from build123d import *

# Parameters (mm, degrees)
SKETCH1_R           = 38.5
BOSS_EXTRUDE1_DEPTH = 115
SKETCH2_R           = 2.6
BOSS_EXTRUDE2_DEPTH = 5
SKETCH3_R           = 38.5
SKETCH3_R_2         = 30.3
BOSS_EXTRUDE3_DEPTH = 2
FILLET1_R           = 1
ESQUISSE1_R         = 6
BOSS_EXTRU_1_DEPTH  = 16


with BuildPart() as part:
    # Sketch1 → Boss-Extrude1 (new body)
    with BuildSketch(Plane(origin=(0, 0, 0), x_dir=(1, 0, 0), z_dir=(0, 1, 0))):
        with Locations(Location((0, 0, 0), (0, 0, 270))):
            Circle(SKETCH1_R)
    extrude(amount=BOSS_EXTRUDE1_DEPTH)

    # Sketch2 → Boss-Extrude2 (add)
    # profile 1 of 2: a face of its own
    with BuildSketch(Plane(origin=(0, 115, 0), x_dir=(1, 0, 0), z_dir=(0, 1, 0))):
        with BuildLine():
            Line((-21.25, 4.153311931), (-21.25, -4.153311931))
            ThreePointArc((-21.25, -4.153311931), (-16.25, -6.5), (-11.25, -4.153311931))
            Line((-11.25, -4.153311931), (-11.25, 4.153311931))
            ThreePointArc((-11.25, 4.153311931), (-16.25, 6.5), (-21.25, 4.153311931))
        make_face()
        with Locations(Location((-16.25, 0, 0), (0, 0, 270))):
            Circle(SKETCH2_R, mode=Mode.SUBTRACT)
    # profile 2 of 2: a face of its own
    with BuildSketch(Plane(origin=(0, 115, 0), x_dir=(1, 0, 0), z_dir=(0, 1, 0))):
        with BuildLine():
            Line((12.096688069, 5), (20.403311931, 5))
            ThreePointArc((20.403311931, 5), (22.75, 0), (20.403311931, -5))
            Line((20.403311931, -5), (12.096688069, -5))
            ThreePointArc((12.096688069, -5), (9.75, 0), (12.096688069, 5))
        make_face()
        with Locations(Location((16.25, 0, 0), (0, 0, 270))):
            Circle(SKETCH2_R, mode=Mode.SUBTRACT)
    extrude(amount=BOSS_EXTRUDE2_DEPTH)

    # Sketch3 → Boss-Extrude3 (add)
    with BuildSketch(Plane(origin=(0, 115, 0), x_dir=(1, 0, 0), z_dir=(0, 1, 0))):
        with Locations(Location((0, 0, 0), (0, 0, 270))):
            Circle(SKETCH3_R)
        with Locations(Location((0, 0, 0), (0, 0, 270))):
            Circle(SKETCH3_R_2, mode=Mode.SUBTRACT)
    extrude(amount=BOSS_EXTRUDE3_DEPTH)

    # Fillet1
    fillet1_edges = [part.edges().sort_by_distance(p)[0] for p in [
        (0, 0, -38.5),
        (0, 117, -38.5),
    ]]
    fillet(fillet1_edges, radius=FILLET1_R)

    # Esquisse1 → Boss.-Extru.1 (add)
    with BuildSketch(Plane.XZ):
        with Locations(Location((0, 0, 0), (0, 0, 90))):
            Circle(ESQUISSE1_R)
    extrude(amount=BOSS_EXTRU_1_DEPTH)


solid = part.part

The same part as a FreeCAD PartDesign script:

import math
import FreeCAD as App
import Part
import Sketcher
Q = App.Units.Quantity


def edges_at(feature, points):
    """Names of the edges that pass closest to the given points."""
    edges = feature.Shape.Edges
    near = lambda p: min(range(len(edges)), key=lambda i: edges[i].distToShape(Part.Vertex(*p))[0])
    return sorted({f"Edge{near(p) + 1}" for p in points})

doc = App.newDocument("Part")
body = doc.addObject("PartDesign::Body", "Body")

# Sketch on XZ plane
sketch1 = doc.addObject("Sketcher::SketchObject", "Sketch")
body.addObject(sketch1)
sketch1.AttachmentSupport = (doc.XZ_Plane, [""])
sketch1.MapMode = "FlatFace"
sketch1.addGeometry(Part.Circle(App.Vector(0, 0, 0), App.Vector(0, 0, 1), 38), False)
sketch1.addConstraint([
    Sketcher.Constraint("Coincident", 0, 3, -1, 1),
    Sketcher.Constraint("Diameter", 0, Q("77 mm")),
])
pad1 = doc.addObject("PartDesign::Pad", "Pad")
body.addObject(pad1)
pad1.Profile = sketch1
pad1.Length = 115
pad1.Reversed = True

# Sketch on XZ plane
sketch2 = doc.addObject("Sketcher::SketchObject", "Sketch001")
body.addObject(sketch2)
sketch2.AttachmentSupport = (doc.XZ_Plane, [""])
sketch2.MapMode = "FlatFace"
sketch2.AttachmentOffset = App.Placement(App.Vector(0, 0, -115), App.Rotation())
sketch2.addGeometry([
    Part.LineSegment(App.Vector(-21.2, -4.2, 0), App.Vector(-21.2, 4.2, 0)),  # 0
    Part.ArcOfCircle(Part.Circle(App.Vector(-16.2, 0, 0), App.Vector(0, 0, 1), 6.5), math.radians(40), math.radians(140)),  # 1
    Part.LineSegment(App.Vector(-11.2, 4.2, 0), App.Vector(-11.2, -4.2, 0)),  # 2
    Part.ArcOfCircle(Part.Circle(App.Vector(-16.2, 0, 0), App.Vector(0, 0, 1), 6.5), math.radians(-140), math.radians(-40)),  # 3
    Part.Circle(App.Vector(-16.2, 0, 0), App.Vector(0, 0, 1), 2.6),  # 4
    Part.LineSegment(App.Vector(20.4, -5, 0), App.Vector(12.1, -5, 0)),  # 5
    Part.ArcOfCircle(Part.Circle(App.Vector(16.2, 0, 0), App.Vector(0, 0, 1), 6.5), math.radians(130), math.radians(230)),  # 6
    Part.LineSegment(App.Vector(12.1, 5, 0), App.Vector(20.4, 5, 0)),  # 7
    Part.ArcOfCircle(Part.Circle(App.Vector(16.3, 0, 0), App.Vector(0, 0, 1), 6.5), math.radians(-50), math.radians(50)),  # 8
    Part.Circle(App.Vector(16.2, 0, 0), App.Vector(0, 0, 1), 2.6),  # 9
], False)
sketch2.addConstraint([
    Sketcher.Constraint("Coincident", 0, 2, 1, 2),
    Sketcher.Constraint("Coincident", 1, 1, 2, 1),
    Sketcher.Constraint("Coincident", 2, 2, 3, 2),
    Sketcher.Constraint("Coincident", 3, 1, 0, 1),
    Sketcher.Constraint("Coincident", 5, 2, 6, 2),
    Sketcher.Constraint("Coincident", 6, 1, 7, 1),
    Sketcher.Constraint("Coincident", 7, 2, 8, 2),
    Sketcher.Constraint("Coincident", 8, 1, 5, 1),
    Sketcher.Constraint("Vertical", 0),
    Sketcher.Constraint("Vertical", 2),
    Sketcher.Constraint("Horizontal", 5),
    Sketcher.Constraint("Horizontal", 7),
    Sketcher.Constraint("Coincident", 3, 3, 1, 3),
    Sketcher.Constraint("Coincident", 4, 3, 1, 3),
    Sketcher.Constraint("Coincident", 8, 3, 6, 3),
    Sketcher.Constraint("Coincident", 9, 3, 6, 3),
    Sketcher.Constraint("Equal", 1, 3),
    Sketcher.Constraint("Equal", 3, 6),
    Sketcher.Constraint("Equal", 6, 8),
    Sketcher.Constraint("Equal", 4, 9),
    Sketcher.Constraint("Symmetric", 1, 3, 6, 3, -1, 1),
    Sketcher.Constraint("Symmetric", 5, 2, 6, 1, -1),
    Sketcher.Constraint("Horizontal", 0, 2, 1, 1),
    Sketcher.Constraint("Equal", 7, 0),
    Sketcher.Constraint("Diameter", 4, Q("5.2 mm")),
    Sketcher.Constraint("Radius", 1, Q("6.5 mm")),
    Sketcher.Constraint("DistanceY", 5, 2, -1, 1, Q("5 mm")),
    Sketcher.Constraint("DistanceX", 1, 3, 6, 3, Q("32.5 mm")),
])
pad2 = doc.addObject("PartDesign::Pad", "Pad001")
body.addObject(pad2)
pad2.Profile = sketch2
pad2.Length = 5
pad2.Reversed = True

# Sketch on XZ plane
sketch3 = doc.addObject("Sketcher::SketchObject", "Sketch002")
body.addObject(sketch3)
sketch3.AttachmentSupport = (doc.XZ_Plane, [""])
sketch3.MapMode = "FlatFace"
sketch3.AttachmentOffset = App.Placement(App.Vector(0, 0, -115), App.Rotation())
sketch3.addGeometry([
    Part.Circle(App.Vector(0, 0, 0), App.Vector(0, 0, 1), 38),
    Part.Circle(App.Vector(0, 0, 0), App.Vector(0, 0, 1), 30),
], False)
sketch3.addConstraint([
    Sketcher.Constraint("Coincident", 0, 3, -1, 1),
    Sketcher.Constraint("Coincident", 1, 3, -1, 1),
    Sketcher.Constraint("Diameter", 0, Q("77 mm")),
    Sketcher.Constraint("Diameter", 1, Q("60.6 mm")),
])
pad3 = doc.addObject("PartDesign::Pad", "Pad002")
body.addObject(pad3)
pad3.Profile = sketch3
pad3.Length = 2
pad3.Reversed = True
doc.recompute()

fillet = doc.addObject("PartDesign::Fillet", "Fillet")
body.addObject(fillet)
fillet.Base = (pad3, edges_at(pad3, [(0, 0, -38.5), (0, 117, -38.5)]))
fillet.Radius = 1

# Sketch on XZ plane
sketch4 = doc.addObject("Sketcher::SketchObject", "Sketch003")
body.addObject(sketch4)
sketch4.AttachmentSupport = (doc.XZ_Plane, [""])
sketch4.MapMode = "FlatFace"
sketch4.addGeometry(Part.Circle(App.Vector(0, 0, 0), App.Vector(0, 0, 1), 6), False)
sketch4.addConstraint([
    Sketcher.Constraint("Coincident", 0, 3, -1, 1),
    Sketcher.Constraint("Diameter", 0, Q("12 mm")),
])
pad4 = doc.addObject("PartDesign::Pad", "Pad003")
body.addObject(pad4)
pad4.Profile = sketch4
pad4.Length = 16

doc.recompute()
